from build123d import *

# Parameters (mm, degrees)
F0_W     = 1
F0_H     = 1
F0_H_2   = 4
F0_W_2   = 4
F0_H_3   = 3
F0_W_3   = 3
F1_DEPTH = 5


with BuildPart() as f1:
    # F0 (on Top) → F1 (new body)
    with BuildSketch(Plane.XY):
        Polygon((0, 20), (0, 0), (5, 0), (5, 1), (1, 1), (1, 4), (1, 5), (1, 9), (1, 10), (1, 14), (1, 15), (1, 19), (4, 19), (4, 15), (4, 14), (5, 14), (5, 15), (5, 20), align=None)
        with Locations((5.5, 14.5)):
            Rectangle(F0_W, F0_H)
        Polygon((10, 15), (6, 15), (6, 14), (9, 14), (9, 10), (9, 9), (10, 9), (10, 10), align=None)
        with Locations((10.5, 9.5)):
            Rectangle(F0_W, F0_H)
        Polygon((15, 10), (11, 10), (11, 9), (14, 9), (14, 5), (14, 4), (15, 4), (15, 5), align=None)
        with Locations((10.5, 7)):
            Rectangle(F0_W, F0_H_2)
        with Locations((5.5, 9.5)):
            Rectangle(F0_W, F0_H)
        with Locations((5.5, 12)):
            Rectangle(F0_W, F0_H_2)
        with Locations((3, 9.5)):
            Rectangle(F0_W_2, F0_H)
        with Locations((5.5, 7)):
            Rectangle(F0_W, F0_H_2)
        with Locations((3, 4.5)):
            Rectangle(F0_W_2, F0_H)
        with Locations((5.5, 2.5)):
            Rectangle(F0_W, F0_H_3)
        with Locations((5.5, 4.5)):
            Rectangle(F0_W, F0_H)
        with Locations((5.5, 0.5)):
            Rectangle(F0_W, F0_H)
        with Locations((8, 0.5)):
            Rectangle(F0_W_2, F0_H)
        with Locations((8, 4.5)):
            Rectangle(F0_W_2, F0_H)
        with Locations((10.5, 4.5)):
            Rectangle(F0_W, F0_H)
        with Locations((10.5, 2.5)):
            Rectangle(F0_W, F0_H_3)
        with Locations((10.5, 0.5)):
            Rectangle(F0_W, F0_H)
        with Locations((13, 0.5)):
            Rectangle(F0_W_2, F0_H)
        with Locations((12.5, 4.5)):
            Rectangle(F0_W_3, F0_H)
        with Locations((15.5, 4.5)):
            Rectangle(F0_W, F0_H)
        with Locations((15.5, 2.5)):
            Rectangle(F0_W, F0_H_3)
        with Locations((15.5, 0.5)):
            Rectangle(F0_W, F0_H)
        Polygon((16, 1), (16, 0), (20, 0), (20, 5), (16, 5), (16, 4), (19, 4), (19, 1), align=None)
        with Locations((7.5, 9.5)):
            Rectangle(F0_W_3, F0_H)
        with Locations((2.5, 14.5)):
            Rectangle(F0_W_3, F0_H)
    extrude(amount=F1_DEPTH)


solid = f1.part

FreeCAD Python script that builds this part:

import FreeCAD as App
import Part
import Sketcher

V = App.Vector

doc = App.newDocument("Part")
params = doc.addObject("Spreadsheet::Sheet", "Params")
for row, (alias, value) in enumerate([
    ("sketch1_width", "20 mm"),
    ("sketch1_width2", "3 mm"),
    ("sketch1_width3", "4 mm"),
    ("pad1_length", "5 mm"),
], start=1):
    params.set(f"A{row}", alias)
    params.set(f"B{row}", "=" + value)
    params.setAlias(f"B{row}", alias)

body = doc.addObject("PartDesign::Body", "Body")

sketch1 = body.newObject("Sketcher::SketchObject", "Sketch")
sketch1.AttachmentSupport = (doc.getObject("XY_Plane"), [""])
sketch1.MapMode = "FlatFace"
sketch1.addGeometry([
    Part.LineSegment(V(0, 0, 0), V(20, 0, 0)),
    Part.LineSegment(V(20, 0, 0), V(20, 5, 0)),
    Part.LineSegment(V(20, 5, 0), V(15, 5, 0)),
    Part.LineSegment(V(15, 5, 0), V(15, 10, 0)),
    Part.LineSegment(V(15, 10, 0), V(10, 10, 0)),
    Part.LineSegment(V(10, 10, 0), V(10, 15, 0)),
    Part.LineSegment(V(10, 15, 0), V(5, 15, 0)),
    Part.LineSegment(V(5, 15, 0), V(5, 20, 0)),
    Part.LineSegment(V(5, 20, 0), V(0, 20, 0)),
    Part.LineSegment(V(0, 20, 0), V(0, 0, 0)),
    Part.LineSegment(V(16, 1, 0), V(16, 4, 0)),
    Part.LineSegment(V(16, 4, 0), V(19, 4, 0)),
    Part.LineSegment(V(19, 4, 0), V(19, 1, 0)),
    Part.LineSegment(V(19, 1, 0), V(16, 1, 0)),
    Part.LineSegment(V(5, 4, 0), V(5, 1, 0)),
    Part.LineSegment(V(5, 1, 0), V(1, 1, 0)),
    Part.LineSegment(V(1, 1, 0), V(1, 4, 0)),
    Part.LineSegment(V(1, 4, 0), V(5, 4, 0)),
    Part.LineSegment(V(5, 9, 0), V(5, 5, 0)),
    Part.LineSegment(V(5, 5, 0), V(1, 5, 0)),
    Part.LineSegment(V(1, 5, 0), V(1, 9, 0)),
    Part.LineSegment(V(1, 9, 0), V(5, 9, 0)),
    Part.LineSegment(V(10, 4, 0), V(10, 1, 0)),
    Part.LineSegment(V(10, 1, 0), V(6, 1, 0)),
    Part.LineSegment(V(6, 1, 0), V(6, 4, 0)),
    Part.LineSegment(V(6, 4, 0), V(10, 4, 0)),
    Part.LineSegment(V(15, 1, 0), V(11, 1, 0)),
    Part.LineSegment(V(11, 1, 0), V(11, 4, 0)),
    Part.LineSegment(V(11, 4, 0), V(15, 4, 0)),
    Part.LineSegment(V(15, 4, 0), V(15, 1, 0)),
    Part.LineSegment(V(10, 5, 0), V(6, 5, 0)),
    Part.LineSegment(V(6, 5, 0), V(6, 9, 0)),
    Part.LineSegment(V(6, 9, 0), V(10, 9, 0)),
    Part.LineSegment(V(10, 9, 0), V(10, 5, 0)),
    Part.LineSegment(V(6, 10, 0), V(6, 14, 0)),
    Part.LineSegment(V(6, 14, 0), V(9, 14, 0)),
    Part.LineSegment(V(9, 14, 0), V(9, 10, 0)),
    Part.LineSegment(V(9, 10, 0), V(6, 10, 0)),
    Part.LineSegment(V(11, 5, 0), V(11, 9, 0)),
    Part.LineSegment(V(11, 9, 0), V(14, 9, 0)),
    Part.LineSegment(V(14, 9, 0), V(14, 5, 0)),
    Part.LineSegment(V(14, 5, 0), V(11, 5, 0)),
    Part.LineSegment(V(1, 10, 0), V(1, 14, 0)),
    Part.LineSegment(V(1, 14, 0), V(5, 14, 0)),
    Part.LineSegment(V(5, 14, 0), V(5, 10, 0)),
    Part.LineSegment(V(5, 10, 0), V(1, 10, 0)),
    Part.LineSegment(V(1, 15, 0), V(1, 19, 0)),
    Part.LineSegment(V(1, 19, 0), V(4, 19, 0)),
    Part.LineSegment(V(4, 19, 0), V(4, 15, 0)),
    Part.LineSegment(V(4, 15, 0), V(1, 15, 0)),
], False)
sketch1.addConstraint([
    Sketcher.Constraint("Coincident", 0, 2, 1, 1),
    Sketcher.Constraint("Coincident", 1, 2, 2, 1),
    Sketcher.Constraint("Coincident", 2, 2, 3, 1),
    Sketcher.Constraint("Coincident", 3, 2, 4, 1),
    Sketcher.Constraint("Coincident", 4, 2, 5, 1),
    Sketcher.Constraint("Coincident", 5, 2, 6, 1),
    Sketcher.Constraint("Coincident", 6, 2, 7, 1),
    Sketcher.Constraint("Coincident", 7, 2, 8, 1),
    Sketcher.Constraint("Coincident", 8, 2, 9, 1),
    Sketcher.Constraint("Coincident", 9, 2, 0, 1),
    Sketcher.Constraint("Coincident", 10, 2, 11, 1),
    Sketcher.Constraint("Coincident", 11, 2, 12, 1),
    Sketcher.Constraint("Coincident", 12, 2, 13, 1),
    Sketcher.Constraint("Coincident", 13, 2, 10, 1),
    Sketcher.Constraint("Coincident", 14, 2, 15, 1),
    Sketcher.Constraint("Coincident", 15, 2, 16, 1),
    Sketcher.Constraint("Coincident", 16, 2, 17, 1),
    Sketcher.Constraint("Coincident", 17, 2, 14, 1),
    Sketcher.Constraint("Coincident", 18, 2, 19, 1),
    Sketcher.Constraint("Coincident", 19, 2, 20, 1),
    Sketcher.Constraint("Coincident", 20, 2, 21, 1),
    Sketcher.Constraint("Coincident", 21, 2, 18, 1),
    Sketcher.Constraint("Coincident", 22, 2, 23, 1),
    Sketcher.Constraint("Coincident", 23, 2, 24, 1),
    Sketcher.Constraint("Coincident", 24, 2, 25, 1),
    Sketcher.Constraint("Coincident", 25, 2, 22, 1),
    Sketcher.Constraint("Coincident", 26, 2, 27, 1),
    Sketcher.Constraint("Coincident", 27, 2, 28, 1),
    Sketcher.Constraint("Coincident", 28, 2, 29, 1),
    Sketcher.Constraint("Coincident", 29, 2, 26, 1),
    Sketcher.Constraint("Coincident", 30, 2, 31, 1),
    Sketcher.Constraint("Coincident", 31, 2, 32, 1),
    Sketcher.Constraint("Coincident", 32, 2, 33, 1),
    Sketcher.Constraint("Coincident", 33, 2, 30, 1),
    Sketcher.Constraint("Coincident", 34, 2, 35, 1),
    Sketcher.Constraint("Coincident", 35, 2, 36, 1),
    Sketcher.Constraint("Coincident", 36, 2, 37, 1),
    Sketcher.Constraint("Coincident", 37, 2, 34, 1),
    Sketcher.Constraint("Coincident", 38, 2, 39, 1),
    Sketcher.Constraint("Coincident", 39, 2, 40, 1),
    Sketcher.Constraint("Coincident", 40, 2, 41, 1),
    Sketcher.Constraint("Coincident", 41, 2, 38, 1),
    Sketcher.Constraint("Coincident", 42, 2, 43, 1),
    Sketcher.Constraint("Coincident", 43, 2, 44, 1),
    Sketcher.Constraint("Coincident", 44, 2, 45, 1),
    Sketcher.Constraint("Coincident", 45, 2, 42, 1),
    Sketcher.Constraint("Coincident", 46, 2, 47, 1),
    Sketcher.Constraint("Coincident", 47, 2, 48, 1),
    Sketcher.Constraint("Coincident", 48, 2, 49, 1),
    Sketcher.Constraint("Coincident", 49, 2, 46, 1),
    Sketcher.Constraint("Horizontal", 0),
    Sketcher.Constraint("Vertical", 1),
    Sketcher.Constraint("Horizontal", 2),
    Sketcher.Constraint("Vertical", 3),
    Sketcher.Constraint("Horizontal", 4),
    Sketcher.Constraint("Vertical", 5),
    Sketcher.Constraint("Horizontal", 6),
    Sketcher.Constraint("Vertical", 7),
    Sketcher.Constraint("Horizontal", 8),
    Sketcher.Constraint("Vertical", 9),
    Sketcher.Constraint("Vertical", 10),
    Sketcher.Constraint("Horizontal", 11),
    Sketcher.Constraint("Vertical", 12),
    Sketcher.Constraint("Horizontal", 13),
    Sketcher.Constraint("Vertical", 14),
    Sketcher.Constraint("Horizontal", 15),
    Sketcher.Constraint("Vertical", 16),
    Sketcher.Constraint("Horizontal", 17),
    Sketcher.Constraint("Vertical", 18),
    Sketcher.Constraint("Horizontal", 19),
    Sketcher.Constraint("Vertical", 20),
    Sketcher.Constraint("Horizontal", 21),
    Sketcher.Constraint("Vertical", 22),
    Sketcher.Constraint("Horizontal", 23),
    Sketcher.Constraint("Vertical", 24),
    Sketcher.Constraint("Horizontal", 25),
    Sketcher.Constraint("Horizontal", 26),
    Sketcher.Constraint("Vertical", 27),
    Sketcher.Constraint("Horizontal", 28),
    Sketcher.Constraint("Vertical", 29),
    Sketcher.Constraint("Horizontal", 30),
    Sketcher.Constraint("Vertical", 31),
    Sketcher.Constraint("Horizontal", 32),
    Sketcher.Constraint("Vertical", 33),
    Sketcher.Constraint("Vertical", 34),
    Sketcher.Constraint("Horizontal", 35),
    Sketcher.Constraint("Vertical", 36),
    Sketcher.Constraint("Horizontal", 37),
    Sketcher.Constraint("Vertical", 38),
    Sketcher.Constraint("Horizontal", 39),
    Sketcher.Constraint("Vertical", 40),
    Sketcher.Constraint("Horizontal", 41),
    Sketcher.Constraint("Vertical", 42),
    Sketcher.Constraint("Horizontal", 43),
    Sketcher.Constraint("Vertical", 44),
    Sketcher.Constraint("Horizontal", 45),
    Sketcher.Constraint("Vertical", 46),
    Sketcher.Constraint("Horizontal", 47),
    Sketcher.Constraint("Vertical", 48),
    Sketcher.Constraint("Horizontal", 49),
    Sketcher.Constraint("Coincident", 9, 2, -1, 1),
    Sketcher.Constraint("Horizontal", 13, 2, 14, 2),
    Sketcher.Constraint("Horizontal", 11, 2, 16, 2),
    Sketcher.Constraint("Horizontal", 2, 2, 18, 2),
    Sketcher.Constraint("Horizontal", 15, 2, 22, 2),
    Sketcher.Constraint("Horizontal", 17, 2, 24, 2),
    Sketcher.Constraint("Horizontal", 23, 2, 26, 2),
    Sketcher.Constraint("Horizontal", 25, 2, 27, 2),
    Sketcher.Constraint("Horizontal", 19, 2, 30, 2),
    Sketcher.Constraint("Horizontal", 21, 2, 31, 2),
    Sketcher.Constraint("Horizontal", 4, 2, 36, 2),
    Sketcher.Constraint("Horizontal", 32, 2, 38, 2),
    Sketcher.Constraint("Horizontal", 33, 2, 40, 2),
    Sketcher.Constraint("Horizontal", 35, 2, 42, 2),
    Sketcher.Constraint("Horizontal", 37, 2, 44, 2),
    Sketcher.Constraint("Horizontal", 6, 2, 48, 2),
    Sketcher.Constraint("Vertical", 7, 2, 14, 2),
    Sketcher.Constraint("Vertical", 17, 2, 18, 2),
    Sketcher.Constraint("Vertical", 16, 2, 19, 2),
    Sketcher.Constraint("Vertical", 5, 2, 22, 2),
    Sketcher.Constraint("Vertical", 3, 2, 28, 2),
    Sketcher.Constraint("Vertical", 24, 2, 30, 2),
    Sketcher.Constraint("Vertical", 25, 2, 32, 2),
    Sketcher.Constraint("Vertical", 31, 2, 34, 2),
    Sketcher.Constraint("Vertical", 27, 2, 38, 2),
    Sketcher.Constraint("Vertical", 20, 2, 42, 2),
    Sketcher.Constraint("Vertical", 21, 2, 43, 2),
    Sketcher.Constraint("Vertical", 45, 2, 46, 2),
    Sketcher.Constraint("Equal", 2, 4),
    Sketcher.Constraint("Equal", 4, 6),
    Sketcher.Constraint("Equal", 6, 8),
    Sketcher.Constraint("Equal", 21, 23),
    Sketcher.Constraint("Equal", 25, 26),
    Sketcher.Constraint("Equal", 13, 35),
    Sketcher.Constraint("Equal", 37, 39),
    Sketcher.Constraint("Equal", 41, 47),
    Sketcher.Constraint("Equal", 8, 1),
    Sketcher.Constraint("Equal", 1, 3),
    Sketcher.Constraint("Equal", 3, 5),
    Sketcher.Constraint("Equal", 5, 7),
    Sketcher.Constraint("Equal", 49, 10),
    Sketcher.Constraint("Equal", 45, 18),
    Sketcher.Constraint("Equal", 33, 34),
    Sketcher.Constraint("Equal", 44, 46),
    Sketcher.Constraint("DistanceX", 0, 1, 0, 2, 20.0),
    Sketcher.Constraint("DistanceX", 11, 1, 11, 2, 3.0),
    Sketcher.Constraint("DistanceX", 15, 2, 15, 1, 4.0),
    Sketcher.Constraint("DistanceX", -1, 1, 10, 2, 16.0),
    Sketcher.Constraint("DistanceY", -1, 1, 10, 2, 4.0),
])
sketch1.setExpression("Constraints[144]", "Params.sketch1_width")
sketch1.setExpression("Constraints[145]", "Params.sketch1_width2")
sketch1.setExpression("Constraints[146]", "Params.sketch1_width3")
pad1 = body.newObject("PartDesign::Pad", "Pad")
pad1.Profile = sketch1
pad1.setExpression("Length", "Params.pad1_length")

doc.recompute()
